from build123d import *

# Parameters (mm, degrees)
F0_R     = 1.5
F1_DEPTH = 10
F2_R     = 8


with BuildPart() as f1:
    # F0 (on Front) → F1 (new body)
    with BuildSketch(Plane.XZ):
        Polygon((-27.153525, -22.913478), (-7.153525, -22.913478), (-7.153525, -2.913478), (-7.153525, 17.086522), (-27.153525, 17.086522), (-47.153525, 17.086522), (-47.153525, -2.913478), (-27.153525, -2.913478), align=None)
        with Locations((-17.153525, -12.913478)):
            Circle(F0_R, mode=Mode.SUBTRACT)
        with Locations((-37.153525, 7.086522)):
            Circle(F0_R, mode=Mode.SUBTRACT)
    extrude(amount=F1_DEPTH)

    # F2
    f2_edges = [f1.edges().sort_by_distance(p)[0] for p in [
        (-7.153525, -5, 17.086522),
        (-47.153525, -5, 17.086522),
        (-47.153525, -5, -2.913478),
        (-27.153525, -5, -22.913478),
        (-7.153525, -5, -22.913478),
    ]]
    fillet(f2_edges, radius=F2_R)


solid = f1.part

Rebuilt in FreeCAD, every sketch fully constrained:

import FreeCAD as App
import Part
import Sketcher


def edges_at(feature, points):
    """Names of the edges that pass closest to the given points."""
    edges = feature.Shape.Edges
    near = lambda p: min(range(len(edges)), key=lambda i: edges[i].distToShape(Part.Vertex(*p))[0])
    return sorted({f"Edge{near(p) + 1}" for p in points})

doc = App.newDocument("Part")
params = doc.addObject("Spreadsheet::Sheet", "Params")
for row, (alias, value) in enumerate([
    ("sketch1_diameter", "3 mm"),
    ("sketch1_width", "20 mm"),
    ("pad1_length", "10 mm"),
    ("fillet_radius", "8 mm"),
], start=1):
    params.set(f"A{row}", alias)
    params.set(f"B{row}", "=" + value)
    params.setAlias(f"B{row}", alias)

body = doc.addObject("PartDesign::Body", "Body")

# Sketch on XZ plane
sketch1 = body.newObject("Sketcher::SketchObject", "Sketch")
sketch1.AttachmentSupport = (doc.getObject("XZ_Plane"), [""])
sketch1.MapMode = "FlatFace"
sketch1.addGeometry([
    Part.LineSegment(App.Vector(-27.2, -22.9, 0), App.Vector(-7.2, -22.9, 0)),  # 0
    Part.LineSegment(App.Vector(-7.2, -22.9, 0), App.Vector(-7.2, 17.1, 0)),  # 1
    Part.LineSegment(App.Vector(-7.2, 17.1, 0), App.Vector(-47.2, 17.1, 0)),  # 2
    Part.LineSegment(App.Vector(-47.2, 17.1, 0), App.Vector(-47.2, -2.9, 0)),  # 3
    Part.LineSegment(App.Vector(-47.2, -2.9, 0), App.Vector(-27.2, -2.9, 0)),  # 4
    Part.LineSegment(App.Vector(-27.2, -2.9, 0), App.Vector(-27.2, -22.9, 0)),  # 5
    Part.Circle(App.Vector(-17.2, -12.9, 0), App.Vector(0, 0, 1), 1.5),  # 6
    Part.Circle(App.Vector(-37.2, 7.1, 0), App.Vector(0, 0, 1), 1.5),  # 7
], False)
sketch1.addConstraint([
    Sketcher.Constraint("Coincident", 0, 2, 1, 1),
    Sketcher.Constraint("Coincident", 1, 2, 2, 1),
    Sketcher.Constraint("Coincident", 2, 2, 3, 1),
    Sketcher.Constraint("Coincident", 3, 2, 4, 1),
    Sketcher.Constraint("Coincident", 4, 2, 5, 1),
    Sketcher.Constraint("Coincident", 5, 2, 0, 1),
    Sketcher.Constraint("Horizontal", 0),
    Sketcher.Constraint("Vertical", 1),
    Sketcher.Constraint("Horizontal", 2),
    Sketcher.Constraint("Vertical", 3),
    Sketcher.Constraint("Horizontal", 4),
    Sketcher.Constraint("Vertical", 5),
    Sketcher.Constraint("Equal", 6, 7),
    Sketcher.Constraint("Equal", 0, 4),
    Sketcher.Constraint("Equal", 2, 1),
    Sketcher.Constraint("Equal", 4, 3),
    Sketcher.Constraint("Diameter", 6, 3.0),
    Sketcher.Constraint("DistanceX", 0, 1, 0, 2, 20.0),
    Sketcher.Constraint("DistanceX", 7, 3, 6, 3, 20.0),
    Sketcher.Constraint("DistanceY", 6, 3, 7, 3, 20.0),
    Sketcher.Constraint("DistanceX", 6, 3, 0, 2, 10.0),
    Sketcher.Constraint("DistanceY", 0, 2, 6, 3, 10.0),
    Sketcher.Constraint("DistanceY", 0, 2, -1, 1, 22.913478),
    Sketcher.Constraint("DistanceX", 6, 3, -1, 1, 17.153525),
])
sketch1.setExpression("Constraints[16]", "Params.sketch1_diameter")
sketch1.setExpression("Constraints[17]", "Params.sketch1_width")
pad1 = body.newObject("PartDesign::Pad", "Pad")
pad1.Profile = sketch1
pad1.setExpression("Length", "Params.pad1_length")
doc.recompute()

fillet = body.newObject("PartDesign::Fillet", "Fillet")
fillet.Base = (pad1, edges_at(pad1, [
    (-7.154, -5, 17.087),
    (-47.154, -5, 17.087),
    (-47.154, -5, -2.913),
    (-27.154, -5, -22.913),
    (-7.154, -5, -22.913),
]))
fillet.setExpression("Radius", "Params.fillet_radius")

doc.recompute()
